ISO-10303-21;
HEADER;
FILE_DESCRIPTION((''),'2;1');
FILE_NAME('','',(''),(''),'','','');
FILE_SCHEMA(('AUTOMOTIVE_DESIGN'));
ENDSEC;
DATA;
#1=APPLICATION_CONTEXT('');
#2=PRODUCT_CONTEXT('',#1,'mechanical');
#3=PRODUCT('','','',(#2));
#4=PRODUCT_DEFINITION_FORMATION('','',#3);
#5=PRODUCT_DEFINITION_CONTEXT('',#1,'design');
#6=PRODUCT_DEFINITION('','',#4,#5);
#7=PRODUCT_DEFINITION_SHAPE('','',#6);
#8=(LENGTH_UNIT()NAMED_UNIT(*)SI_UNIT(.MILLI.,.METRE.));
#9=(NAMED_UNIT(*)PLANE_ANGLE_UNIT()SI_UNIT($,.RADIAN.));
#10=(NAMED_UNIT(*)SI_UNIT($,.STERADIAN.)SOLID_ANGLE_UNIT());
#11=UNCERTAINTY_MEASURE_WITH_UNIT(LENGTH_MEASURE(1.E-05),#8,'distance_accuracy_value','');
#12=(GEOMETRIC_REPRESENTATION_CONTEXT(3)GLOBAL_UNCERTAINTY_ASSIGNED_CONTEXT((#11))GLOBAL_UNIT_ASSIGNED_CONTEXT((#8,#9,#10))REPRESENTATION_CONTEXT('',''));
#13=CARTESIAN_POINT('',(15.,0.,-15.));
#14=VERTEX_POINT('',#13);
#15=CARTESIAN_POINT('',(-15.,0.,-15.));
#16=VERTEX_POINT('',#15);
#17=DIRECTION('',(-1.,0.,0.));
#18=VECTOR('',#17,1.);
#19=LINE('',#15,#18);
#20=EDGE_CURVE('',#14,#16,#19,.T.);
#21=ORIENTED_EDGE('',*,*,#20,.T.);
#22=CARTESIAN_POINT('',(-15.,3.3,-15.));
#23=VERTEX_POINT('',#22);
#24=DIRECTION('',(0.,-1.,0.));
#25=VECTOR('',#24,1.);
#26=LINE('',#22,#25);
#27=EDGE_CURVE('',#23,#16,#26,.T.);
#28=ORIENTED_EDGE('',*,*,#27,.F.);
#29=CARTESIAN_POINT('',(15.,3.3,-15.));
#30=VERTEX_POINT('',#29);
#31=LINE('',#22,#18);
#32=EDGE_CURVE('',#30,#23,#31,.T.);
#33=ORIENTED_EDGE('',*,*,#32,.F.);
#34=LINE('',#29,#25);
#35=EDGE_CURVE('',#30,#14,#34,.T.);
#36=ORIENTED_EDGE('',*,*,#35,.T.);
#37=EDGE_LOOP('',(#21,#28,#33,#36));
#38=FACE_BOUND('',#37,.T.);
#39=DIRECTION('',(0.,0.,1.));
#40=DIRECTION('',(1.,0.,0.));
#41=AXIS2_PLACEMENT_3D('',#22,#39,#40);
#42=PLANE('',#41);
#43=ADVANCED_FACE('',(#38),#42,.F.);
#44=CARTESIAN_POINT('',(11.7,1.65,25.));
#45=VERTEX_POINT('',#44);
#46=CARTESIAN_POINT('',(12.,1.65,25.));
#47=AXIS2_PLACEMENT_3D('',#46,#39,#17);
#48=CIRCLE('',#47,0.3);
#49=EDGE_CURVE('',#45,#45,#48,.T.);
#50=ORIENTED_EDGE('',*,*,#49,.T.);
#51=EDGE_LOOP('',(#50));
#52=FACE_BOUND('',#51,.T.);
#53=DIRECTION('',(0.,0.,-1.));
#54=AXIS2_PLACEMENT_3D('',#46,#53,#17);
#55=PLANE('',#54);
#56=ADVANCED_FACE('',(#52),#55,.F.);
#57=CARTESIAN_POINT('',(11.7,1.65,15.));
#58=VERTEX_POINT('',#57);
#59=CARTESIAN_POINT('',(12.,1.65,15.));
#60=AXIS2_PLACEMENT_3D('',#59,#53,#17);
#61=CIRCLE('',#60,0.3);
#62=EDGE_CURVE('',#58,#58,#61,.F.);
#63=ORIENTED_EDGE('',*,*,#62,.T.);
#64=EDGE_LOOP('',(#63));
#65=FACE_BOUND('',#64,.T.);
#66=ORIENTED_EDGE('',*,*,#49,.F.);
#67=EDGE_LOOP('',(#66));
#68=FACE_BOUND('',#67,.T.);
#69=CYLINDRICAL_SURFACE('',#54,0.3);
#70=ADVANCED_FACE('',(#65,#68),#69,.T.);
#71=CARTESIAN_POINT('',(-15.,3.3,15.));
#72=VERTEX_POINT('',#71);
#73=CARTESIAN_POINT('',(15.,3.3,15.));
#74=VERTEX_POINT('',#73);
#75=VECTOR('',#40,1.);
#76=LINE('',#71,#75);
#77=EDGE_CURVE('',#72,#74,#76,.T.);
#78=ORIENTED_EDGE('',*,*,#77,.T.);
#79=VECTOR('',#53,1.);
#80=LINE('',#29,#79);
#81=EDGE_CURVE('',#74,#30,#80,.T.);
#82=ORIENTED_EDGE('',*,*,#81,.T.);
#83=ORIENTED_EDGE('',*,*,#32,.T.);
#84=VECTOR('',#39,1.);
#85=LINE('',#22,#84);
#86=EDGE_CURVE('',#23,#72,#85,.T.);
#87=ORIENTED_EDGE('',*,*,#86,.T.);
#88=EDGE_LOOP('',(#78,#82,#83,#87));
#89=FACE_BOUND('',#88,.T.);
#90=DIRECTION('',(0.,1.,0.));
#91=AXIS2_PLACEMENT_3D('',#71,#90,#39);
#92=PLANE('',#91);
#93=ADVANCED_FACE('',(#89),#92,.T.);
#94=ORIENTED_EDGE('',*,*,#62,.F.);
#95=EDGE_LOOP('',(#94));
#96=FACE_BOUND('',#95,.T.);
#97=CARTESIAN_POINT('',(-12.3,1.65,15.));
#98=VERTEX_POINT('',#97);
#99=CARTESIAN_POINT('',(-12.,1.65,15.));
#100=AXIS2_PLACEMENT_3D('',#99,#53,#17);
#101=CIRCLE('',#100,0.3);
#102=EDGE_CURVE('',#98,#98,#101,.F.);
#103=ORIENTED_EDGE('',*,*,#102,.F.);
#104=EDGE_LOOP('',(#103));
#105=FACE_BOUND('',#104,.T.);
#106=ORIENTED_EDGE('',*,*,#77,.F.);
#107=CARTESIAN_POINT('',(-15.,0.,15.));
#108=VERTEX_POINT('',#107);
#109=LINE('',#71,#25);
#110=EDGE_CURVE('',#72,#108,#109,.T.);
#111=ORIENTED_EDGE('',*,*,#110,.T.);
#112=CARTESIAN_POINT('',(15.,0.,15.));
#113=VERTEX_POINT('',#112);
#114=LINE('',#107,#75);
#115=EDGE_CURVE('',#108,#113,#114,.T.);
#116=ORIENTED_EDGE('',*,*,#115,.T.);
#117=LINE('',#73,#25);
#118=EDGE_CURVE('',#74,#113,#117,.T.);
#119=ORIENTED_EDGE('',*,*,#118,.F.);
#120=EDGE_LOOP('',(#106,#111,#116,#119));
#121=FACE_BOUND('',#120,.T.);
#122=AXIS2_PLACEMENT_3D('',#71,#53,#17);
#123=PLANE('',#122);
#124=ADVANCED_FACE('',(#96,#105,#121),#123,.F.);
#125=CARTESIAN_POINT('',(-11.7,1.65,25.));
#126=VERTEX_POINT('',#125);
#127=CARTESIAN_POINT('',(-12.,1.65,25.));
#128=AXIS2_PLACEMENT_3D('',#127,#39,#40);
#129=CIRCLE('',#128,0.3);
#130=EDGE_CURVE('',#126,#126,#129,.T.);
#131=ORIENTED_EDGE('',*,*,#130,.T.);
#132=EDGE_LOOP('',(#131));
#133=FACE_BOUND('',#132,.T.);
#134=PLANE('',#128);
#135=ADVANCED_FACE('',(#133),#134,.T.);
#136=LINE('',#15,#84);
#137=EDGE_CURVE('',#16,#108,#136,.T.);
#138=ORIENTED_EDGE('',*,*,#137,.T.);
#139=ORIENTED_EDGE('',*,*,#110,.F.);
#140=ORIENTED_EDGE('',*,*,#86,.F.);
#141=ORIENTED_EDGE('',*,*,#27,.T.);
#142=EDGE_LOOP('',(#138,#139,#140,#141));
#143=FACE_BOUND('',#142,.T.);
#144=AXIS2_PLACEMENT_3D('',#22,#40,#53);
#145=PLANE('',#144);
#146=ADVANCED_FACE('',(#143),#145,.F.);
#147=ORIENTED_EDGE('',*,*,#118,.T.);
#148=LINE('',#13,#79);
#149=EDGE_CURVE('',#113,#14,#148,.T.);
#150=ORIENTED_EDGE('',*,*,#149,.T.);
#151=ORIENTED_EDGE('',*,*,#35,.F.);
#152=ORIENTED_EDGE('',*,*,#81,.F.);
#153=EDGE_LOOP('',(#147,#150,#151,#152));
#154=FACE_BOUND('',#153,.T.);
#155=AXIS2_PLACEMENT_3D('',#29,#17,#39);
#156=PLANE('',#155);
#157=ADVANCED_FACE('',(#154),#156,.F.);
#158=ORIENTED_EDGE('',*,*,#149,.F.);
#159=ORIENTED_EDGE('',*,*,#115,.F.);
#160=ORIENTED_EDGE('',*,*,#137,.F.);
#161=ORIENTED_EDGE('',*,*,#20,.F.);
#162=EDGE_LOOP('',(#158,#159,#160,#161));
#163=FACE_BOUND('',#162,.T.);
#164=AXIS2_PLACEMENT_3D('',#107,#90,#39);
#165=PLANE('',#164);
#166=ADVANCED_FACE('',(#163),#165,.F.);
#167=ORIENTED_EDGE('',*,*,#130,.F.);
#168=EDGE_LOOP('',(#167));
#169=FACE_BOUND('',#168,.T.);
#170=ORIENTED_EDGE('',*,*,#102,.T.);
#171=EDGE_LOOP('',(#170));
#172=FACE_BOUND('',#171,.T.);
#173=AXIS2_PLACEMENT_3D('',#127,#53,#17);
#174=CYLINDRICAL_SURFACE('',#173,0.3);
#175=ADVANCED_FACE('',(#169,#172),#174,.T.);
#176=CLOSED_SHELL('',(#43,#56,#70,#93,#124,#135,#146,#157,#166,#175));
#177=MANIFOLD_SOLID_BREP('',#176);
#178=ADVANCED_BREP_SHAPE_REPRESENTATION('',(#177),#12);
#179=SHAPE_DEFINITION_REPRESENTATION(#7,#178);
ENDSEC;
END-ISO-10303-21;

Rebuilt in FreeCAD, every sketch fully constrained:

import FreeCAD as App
import Part
import Sketcher
from FreeCAD import Vector


def add_polygon(sketch, points):
    """Adds a closed chain of lines whose ends are joined by coincident constraints."""
    first, n = sketch.GeometryCount, len(points)
    for a, b in zip(points, points[1:] + points[:1]):
        sketch.addGeometry(Part.LineSegment(App.Vector(*a, 0), App.Vector(*b, 0)), False)
    for i in range(n):
        sketch.addConstraint(Sketcher.Constraint("Coincident", first + i, 2, first + (i + 1) % n, 1))

doc = App.newDocument("Part")
body = doc.addObject("PartDesign::Body", "Body")

# Sketch on XZ plane
sketch1 = body.newObject("Sketcher::SketchObject", "Sketch")
sketch1.AttachmentSupport = (doc.getObject("XZ_Plane"), [""])
sketch1.MapMode = "FlatFace"
add_polygon(sketch1, [(-15, -15), (-15, 15), (15, 15), (15, -15)])  # lines 0-3
sketch1.addConstraint(Sketcher.Constraint("Vertical", 0))
sketch1.addConstraint(Sketcher.Constraint("Horizontal", 1))
sketch1.addConstraint(Sketcher.Constraint("Vertical", 2))
sketch1.addConstraint(Sketcher.Constraint("Horizontal", 3))
sketch1.addConstraint(Sketcher.Constraint("Symmetric", 0, 2, 2, 2, -1, 1))
sketch1.addConstraint(Sketcher.Constraint("Equal", 3, 0))
sketch1.addConstraint(Sketcher.Constraint("DistanceX", 1, 1, 1, 2, 30.0))
pad1 = body.newObject("PartDesign::Pad", "Pad")
pad1.Profile = sketch1
pad1.Length = 3.3
pad1.Reversed = True

# Sketch on XY plane
sketch2 = body.newObject("Sketcher::SketchObject", "Sketch001")
sketch2.AttachmentSupport = (doc.getObject("XY_Plane"), [""])
sketch2.MapMode = "FlatFace"
sketch2.AttachmentOffset = App.Placement(Vector(0, 0, 15), App.Rotation())
sketch2.addGeometry(Part.Circle(Vector(-12, 1.65, 0), Vector(0, 0, 1), 0.3), False)
sketch2.addGeometry(Part.Circle(Vector(12, 1.65, 0), Vector(0, 0, 1), 0.3), False)
sketch2.addConstraint(Sketcher.Constraint("Equal", 0, 1))
sketch2.addConstraint(Sketcher.Constraint("Symmetric", 0, 3, 1, 3, -2))
sketch2.addConstraint(Sketcher.Constraint("Diameter", 0, 0.6))
sketch2.addConstraint(Sketcher.Constraint("DistanceX", 0, 3, -1, 1, 12.0))
sketch2.addConstraint(Sketcher.Constraint("DistanceY", -1, 1, 0, 3, 1.65))
pad2 = body.newObject("PartDesign::Pad", "Pad001")
pad2.Profile = sketch2
pad2.Length = 10

doc.recompute()
